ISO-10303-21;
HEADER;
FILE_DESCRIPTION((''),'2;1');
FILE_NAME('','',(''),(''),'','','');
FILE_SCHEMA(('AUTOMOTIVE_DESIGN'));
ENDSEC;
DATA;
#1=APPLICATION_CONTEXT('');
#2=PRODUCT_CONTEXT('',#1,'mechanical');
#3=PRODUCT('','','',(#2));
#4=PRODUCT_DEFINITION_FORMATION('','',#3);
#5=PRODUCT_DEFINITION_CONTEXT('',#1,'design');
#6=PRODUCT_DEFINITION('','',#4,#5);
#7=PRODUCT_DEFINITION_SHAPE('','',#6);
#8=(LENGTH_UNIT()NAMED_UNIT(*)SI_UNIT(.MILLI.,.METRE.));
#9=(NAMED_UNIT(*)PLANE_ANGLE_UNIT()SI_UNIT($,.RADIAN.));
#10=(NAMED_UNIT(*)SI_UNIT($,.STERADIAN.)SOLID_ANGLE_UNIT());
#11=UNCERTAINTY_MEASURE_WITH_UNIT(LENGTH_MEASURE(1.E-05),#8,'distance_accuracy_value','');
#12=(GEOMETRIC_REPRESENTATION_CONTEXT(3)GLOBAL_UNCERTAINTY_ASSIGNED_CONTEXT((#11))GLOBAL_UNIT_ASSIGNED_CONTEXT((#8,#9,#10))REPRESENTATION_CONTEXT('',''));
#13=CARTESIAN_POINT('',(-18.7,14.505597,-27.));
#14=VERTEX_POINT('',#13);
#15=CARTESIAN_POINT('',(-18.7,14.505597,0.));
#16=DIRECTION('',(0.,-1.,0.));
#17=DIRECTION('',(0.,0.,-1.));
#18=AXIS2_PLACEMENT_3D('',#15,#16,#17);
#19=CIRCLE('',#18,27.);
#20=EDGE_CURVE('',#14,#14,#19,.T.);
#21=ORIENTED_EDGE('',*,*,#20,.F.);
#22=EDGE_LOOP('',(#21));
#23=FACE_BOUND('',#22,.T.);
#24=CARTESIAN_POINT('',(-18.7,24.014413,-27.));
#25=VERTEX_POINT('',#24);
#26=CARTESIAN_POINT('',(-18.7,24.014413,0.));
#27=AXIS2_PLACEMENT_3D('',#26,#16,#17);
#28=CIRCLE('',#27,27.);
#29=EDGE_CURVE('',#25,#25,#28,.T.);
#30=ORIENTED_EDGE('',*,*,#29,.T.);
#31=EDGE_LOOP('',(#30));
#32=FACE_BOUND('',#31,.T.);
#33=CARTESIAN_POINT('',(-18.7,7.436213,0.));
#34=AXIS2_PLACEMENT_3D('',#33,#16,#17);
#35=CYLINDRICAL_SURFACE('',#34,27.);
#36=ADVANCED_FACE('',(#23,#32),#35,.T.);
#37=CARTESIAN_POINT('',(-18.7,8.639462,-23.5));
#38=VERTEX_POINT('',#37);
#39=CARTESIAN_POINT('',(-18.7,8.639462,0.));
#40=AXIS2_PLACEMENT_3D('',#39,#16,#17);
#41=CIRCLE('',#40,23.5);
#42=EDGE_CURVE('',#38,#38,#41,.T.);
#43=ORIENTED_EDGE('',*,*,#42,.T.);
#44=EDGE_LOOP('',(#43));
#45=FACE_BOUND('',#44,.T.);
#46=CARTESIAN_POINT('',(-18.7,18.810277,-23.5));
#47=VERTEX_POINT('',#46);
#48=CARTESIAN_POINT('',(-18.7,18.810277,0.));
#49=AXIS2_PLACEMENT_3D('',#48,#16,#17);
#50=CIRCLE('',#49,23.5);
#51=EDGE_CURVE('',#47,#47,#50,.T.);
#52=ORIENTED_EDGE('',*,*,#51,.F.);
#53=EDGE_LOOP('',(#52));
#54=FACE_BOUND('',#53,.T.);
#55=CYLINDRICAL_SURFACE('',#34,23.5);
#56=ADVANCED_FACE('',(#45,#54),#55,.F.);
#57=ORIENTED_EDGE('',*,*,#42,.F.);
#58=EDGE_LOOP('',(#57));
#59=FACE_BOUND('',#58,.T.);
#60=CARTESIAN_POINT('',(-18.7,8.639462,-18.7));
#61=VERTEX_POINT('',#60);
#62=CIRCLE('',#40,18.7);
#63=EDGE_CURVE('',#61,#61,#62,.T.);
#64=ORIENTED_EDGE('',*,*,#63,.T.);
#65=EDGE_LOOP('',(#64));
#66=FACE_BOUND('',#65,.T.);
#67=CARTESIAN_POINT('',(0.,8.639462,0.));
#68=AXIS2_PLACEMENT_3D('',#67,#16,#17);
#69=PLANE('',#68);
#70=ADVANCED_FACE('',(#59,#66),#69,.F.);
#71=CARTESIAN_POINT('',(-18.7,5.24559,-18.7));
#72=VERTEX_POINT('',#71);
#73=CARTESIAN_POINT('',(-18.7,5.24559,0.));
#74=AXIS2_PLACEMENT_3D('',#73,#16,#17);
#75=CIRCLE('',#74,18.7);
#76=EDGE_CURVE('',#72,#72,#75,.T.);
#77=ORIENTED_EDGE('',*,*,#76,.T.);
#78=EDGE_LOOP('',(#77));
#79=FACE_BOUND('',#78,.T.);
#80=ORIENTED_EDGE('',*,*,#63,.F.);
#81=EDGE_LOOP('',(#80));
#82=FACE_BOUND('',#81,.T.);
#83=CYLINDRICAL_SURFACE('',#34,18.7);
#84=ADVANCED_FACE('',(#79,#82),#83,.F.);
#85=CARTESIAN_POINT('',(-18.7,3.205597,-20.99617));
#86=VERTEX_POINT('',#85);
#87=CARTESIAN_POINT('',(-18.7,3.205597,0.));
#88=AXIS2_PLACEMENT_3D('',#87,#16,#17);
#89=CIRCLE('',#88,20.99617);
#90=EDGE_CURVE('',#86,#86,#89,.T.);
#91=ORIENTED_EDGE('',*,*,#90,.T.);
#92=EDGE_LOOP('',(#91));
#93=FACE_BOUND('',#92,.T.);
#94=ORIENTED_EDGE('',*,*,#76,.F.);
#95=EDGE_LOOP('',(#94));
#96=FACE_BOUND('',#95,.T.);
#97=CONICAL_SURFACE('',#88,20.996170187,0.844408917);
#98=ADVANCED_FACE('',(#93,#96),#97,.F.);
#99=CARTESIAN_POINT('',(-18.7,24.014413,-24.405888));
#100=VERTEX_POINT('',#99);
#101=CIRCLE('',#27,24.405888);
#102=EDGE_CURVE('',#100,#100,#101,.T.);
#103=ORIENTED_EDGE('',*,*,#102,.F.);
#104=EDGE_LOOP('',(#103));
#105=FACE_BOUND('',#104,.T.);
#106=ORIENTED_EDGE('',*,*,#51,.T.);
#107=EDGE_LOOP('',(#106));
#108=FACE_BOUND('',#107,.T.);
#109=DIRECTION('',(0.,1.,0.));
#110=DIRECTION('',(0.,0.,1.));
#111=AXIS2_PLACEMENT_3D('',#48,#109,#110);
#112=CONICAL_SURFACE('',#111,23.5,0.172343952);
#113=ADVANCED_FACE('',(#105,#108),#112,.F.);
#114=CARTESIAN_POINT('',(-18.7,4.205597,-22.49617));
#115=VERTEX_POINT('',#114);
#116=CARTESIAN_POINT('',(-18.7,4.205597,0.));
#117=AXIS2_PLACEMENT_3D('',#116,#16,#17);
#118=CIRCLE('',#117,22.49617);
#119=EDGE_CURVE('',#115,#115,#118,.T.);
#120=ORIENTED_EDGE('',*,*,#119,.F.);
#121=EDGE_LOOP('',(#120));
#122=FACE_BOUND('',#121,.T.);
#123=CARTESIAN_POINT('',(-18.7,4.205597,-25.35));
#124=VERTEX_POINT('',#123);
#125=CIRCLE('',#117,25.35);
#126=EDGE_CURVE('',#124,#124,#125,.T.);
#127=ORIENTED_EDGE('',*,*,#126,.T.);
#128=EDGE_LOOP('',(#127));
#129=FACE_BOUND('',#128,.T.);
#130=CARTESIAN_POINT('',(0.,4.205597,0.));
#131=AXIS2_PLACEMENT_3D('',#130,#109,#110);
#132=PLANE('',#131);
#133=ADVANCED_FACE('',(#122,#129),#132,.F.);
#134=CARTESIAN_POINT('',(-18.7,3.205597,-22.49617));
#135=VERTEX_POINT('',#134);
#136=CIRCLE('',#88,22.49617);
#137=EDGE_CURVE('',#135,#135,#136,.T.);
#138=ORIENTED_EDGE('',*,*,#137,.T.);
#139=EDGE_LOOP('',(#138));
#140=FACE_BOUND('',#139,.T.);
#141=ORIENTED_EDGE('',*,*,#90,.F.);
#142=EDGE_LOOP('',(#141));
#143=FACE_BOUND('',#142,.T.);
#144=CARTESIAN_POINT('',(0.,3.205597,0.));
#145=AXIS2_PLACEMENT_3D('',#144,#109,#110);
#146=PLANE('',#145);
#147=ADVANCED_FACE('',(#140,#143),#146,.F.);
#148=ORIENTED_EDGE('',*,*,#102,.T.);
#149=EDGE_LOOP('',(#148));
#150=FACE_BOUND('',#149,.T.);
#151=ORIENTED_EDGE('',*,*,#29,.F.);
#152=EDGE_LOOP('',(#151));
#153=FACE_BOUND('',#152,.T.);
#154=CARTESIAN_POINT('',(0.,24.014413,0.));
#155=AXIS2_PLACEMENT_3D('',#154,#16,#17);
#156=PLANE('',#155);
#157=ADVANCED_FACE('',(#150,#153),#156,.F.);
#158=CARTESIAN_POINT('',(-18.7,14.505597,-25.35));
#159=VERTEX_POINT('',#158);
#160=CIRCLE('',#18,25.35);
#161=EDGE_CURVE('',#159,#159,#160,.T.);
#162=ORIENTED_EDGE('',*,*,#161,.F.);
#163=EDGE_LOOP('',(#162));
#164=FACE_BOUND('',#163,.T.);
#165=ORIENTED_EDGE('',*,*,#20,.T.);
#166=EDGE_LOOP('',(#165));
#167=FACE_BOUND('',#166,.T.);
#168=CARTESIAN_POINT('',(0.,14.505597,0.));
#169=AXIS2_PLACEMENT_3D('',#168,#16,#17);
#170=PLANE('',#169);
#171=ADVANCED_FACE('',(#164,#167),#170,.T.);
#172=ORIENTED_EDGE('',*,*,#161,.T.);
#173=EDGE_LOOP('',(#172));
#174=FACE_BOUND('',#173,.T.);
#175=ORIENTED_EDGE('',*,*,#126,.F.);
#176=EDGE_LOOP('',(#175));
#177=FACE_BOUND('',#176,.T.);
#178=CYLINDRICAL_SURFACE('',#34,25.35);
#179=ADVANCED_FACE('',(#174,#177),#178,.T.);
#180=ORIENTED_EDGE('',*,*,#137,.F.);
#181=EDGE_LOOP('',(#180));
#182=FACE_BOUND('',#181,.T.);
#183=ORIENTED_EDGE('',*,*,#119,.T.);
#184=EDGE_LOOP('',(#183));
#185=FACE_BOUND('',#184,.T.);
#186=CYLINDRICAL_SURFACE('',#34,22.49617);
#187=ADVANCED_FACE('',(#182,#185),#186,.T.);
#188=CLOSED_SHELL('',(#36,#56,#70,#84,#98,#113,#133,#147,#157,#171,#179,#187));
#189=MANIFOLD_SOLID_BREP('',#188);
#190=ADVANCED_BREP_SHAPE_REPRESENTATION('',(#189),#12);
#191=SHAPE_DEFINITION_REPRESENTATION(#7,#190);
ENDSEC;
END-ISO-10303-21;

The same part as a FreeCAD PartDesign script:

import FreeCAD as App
import Part
import Sketcher
Q = App.Units.Quantity

doc = App.newDocument("Part")
body = doc.addObject("PartDesign::Body", "Body")

# Sketch on XY plane
sketch1 = doc.addObject("Sketcher::SketchObject", "Sketch")
body.addObject(sketch1)
sketch1.AttachmentSupport = (doc.XY_Plane, [""])
sketch1.MapMode = "FlatFace"
sketch1.addGeometry(Part.LineSegment(App.Vector(0, 8.6, 0), App.Vector(0, 5.2, 0)), False)
sketch1.addGeometry(Part.LineSegment(App.Vector(0, 5.2, 0), App.Vector(2.3, 3.2, 0)), False)
sketch1.addGeometry(Part.LineSegment(App.Vector(2.3, 3.2, 0), App.Vector(3.8, 3.2, 0)), False)
sketch1.addGeometry(Part.LineSegment(App.Vector(3.8, 3.2, 0), App.Vector(3.8, 4.2, 0)), False)
sketch1.addGeometry(Part.LineSegment(App.Vector(3.8, 4.2, 0), App.Vector(6.7, 4.2, 0)), False)
sketch1.addGeometry(Part.LineSegment(App.Vector(6.7, 4.2, 0), App.Vector(6.7, 14.5, 0)), False)
sketch1.addGeometry(Part.LineSegment(App.Vector(6.7, 14.5, 0), App.Vector(8.3, 14.5, 0)), False)
sketch1.addGeometry(Part.LineSegment(App.Vector(8.3, 14.5, 0), App.Vector(8.3, 24, 0)), False)
sketch1.addGeometry(Part.LineSegment(App.Vector(8.3, 24, 0), App.Vector(5.7, 24, 0)), False)
sketch1.addGeometry(Part.LineSegment(App.Vector(5.7, 24, 0), App.Vector(4.8, 18.8, 0)), False)
sketch1.addGeometry(Part.LineSegment(App.Vector(4.8, 18.8, 0), App.Vector(4.8, 8.6, 0)), False)
sketch1.addGeometry(Part.LineSegment(App.Vector(4.8, 8.6, 0), App.Vector(0, 8.6, 0)), False)
sketch1.addGeometry(Part.LineSegment(App.Vector(-18.7, 3.2, 0), App.Vector(-18.7, 24, 0)), True)  # axis
sketch1.addConstraint(Sketcher.Constraint("Coincident", 0, 2, 1, 1))
sketch1.addConstraint(Sketcher.Constraint("Coincident", 1, 2, 2, 1))
sketch1.addConstraint(Sketcher.Constraint("Coincident", 2, 2, 3, 1))
sketch1.addConstraint(Sketcher.Constraint("Coincident", 3, 2, 4, 1))
sketch1.addConstraint(Sketcher.Constraint("Coincident", 4, 2, 5, 1))
sketch1.addConstraint(Sketcher.Constraint("Coincident", 5, 2, 6, 1))
sketch1.addConstraint(Sketcher.Constraint("Coincident", 6, 2, 7, 1))
sketch1.addConstraint(Sketcher.Constraint("Coincident", 7, 2, 8, 1))
sketch1.addConstraint(Sketcher.Constraint("Coincident", 8, 2, 9, 1))
sketch1.addConstraint(Sketcher.Constraint("Coincident", 9, 2, 10, 1))
sketch1.addConstraint(Sketcher.Constraint("Coincident", 10, 2, 11, 1))
sketch1.addConstraint(Sketcher.Constraint("Coincident", 11, 2, 0, 1))
sketch1.addConstraint(Sketcher.Constraint("Vertical", 0))
sketch1.addConstraint(Sketcher.Constraint("Horizontal", 2))
sketch1.addConstraint(Sketcher.Constraint("Vertical", 3))
sketch1.addConstraint(Sketcher.Constraint("Horizontal", 4))
sketch1.addConstraint(Sketcher.Constraint("Vertical", 5))
sketch1.addConstraint(Sketcher.Constraint("Horizontal", 6))
sketch1.addConstraint(Sketcher.Constraint("Vertical", 7))
sketch1.addConstraint(Sketcher.Constraint("Horizontal", 8))
sketch1.addConstraint(Sketcher.Constraint("Vertical", 10))
sketch1.addConstraint(Sketcher.Constraint("Horizontal", 11))
sketch1.addConstraint(Sketcher.Constraint("Vertical", 12))
sketch1.addConstraint(Sketcher.Constraint("PointOnObject", 0, 2, -2))
sketch1.addConstraint(Sketcher.Constraint("Horizontal", 2, 2, 12, 1))
sketch1.addConstraint(Sketcher.Constraint("Horizontal", 8, 2, 12, 2))
sketch1.addConstraint(Sketcher.Constraint("DistanceY", 3, 1, 3, 2, Q("1 mm")))
sketch1.addConstraint(Sketcher.Constraint("DistanceX", 2, 1, 2, 2, Q("1.5 mm")))
sketch1.addConstraint(Sketcher.Constraint("DistanceX", 11, 2, 11, 1, Q("4.8 mm")))
sketch1.addConstraint(Sketcher.Constraint("DistanceY", 5, 1, 5, 2, Q("10.3 mm")))
sketch1.addConstraint(Sketcher.Constraint("DistanceX", 6, 1, 6, 2, Q("1.65 mm")))
sketch1.addConstraint(Sketcher.Constraint("DistanceX", -1, 1, 6, 2, Q("8.3 mm")))
sketch1.addConstraint(Sketcher.Constraint("DistanceX", 12, 1, -1, 1, Q("18.7 mm")))
sketch1.addConstraint(Sketcher.Constraint("DistanceX", 4, 1, 4, 2, Q("2.85383 mm")))
sketch1.addConstraint(Sketcher.Constraint("DistanceX", 8, 2, 8, 1, Q("2.594112 mm")))
sketch1.addConstraint(Sketcher.Constraint("DistanceY", 0, 2, 0, 1, Q("3.393872 mm")))
sketch1.addConstraint(Sketcher.Constraint("DistanceY", 7, 1, 7, 2, Q("9.508816 mm")))
sketch1.addConstraint(Sketcher.Constraint("DistanceY", 10, 2, 10, 1, Q("10.170815 mm")))
sketch1.addConstraint(Sketcher.Constraint("DistanceY", -1, 1, 0, 2, Q("5.24559 mm")))
sketch1.addConstraint(Sketcher.Constraint("DistanceY", 5, 2, 9, 2, Q("4.30468 mm")))
revolution = doc.addObject("PartDesign::Revolution", "Revolution")
body.addObject(revolution)
revolution.Profile = sketch1
revolution.ReferenceAxis = (sketch1, ["Axis0"])
revolution.Angle = 360

doc.recompute()
